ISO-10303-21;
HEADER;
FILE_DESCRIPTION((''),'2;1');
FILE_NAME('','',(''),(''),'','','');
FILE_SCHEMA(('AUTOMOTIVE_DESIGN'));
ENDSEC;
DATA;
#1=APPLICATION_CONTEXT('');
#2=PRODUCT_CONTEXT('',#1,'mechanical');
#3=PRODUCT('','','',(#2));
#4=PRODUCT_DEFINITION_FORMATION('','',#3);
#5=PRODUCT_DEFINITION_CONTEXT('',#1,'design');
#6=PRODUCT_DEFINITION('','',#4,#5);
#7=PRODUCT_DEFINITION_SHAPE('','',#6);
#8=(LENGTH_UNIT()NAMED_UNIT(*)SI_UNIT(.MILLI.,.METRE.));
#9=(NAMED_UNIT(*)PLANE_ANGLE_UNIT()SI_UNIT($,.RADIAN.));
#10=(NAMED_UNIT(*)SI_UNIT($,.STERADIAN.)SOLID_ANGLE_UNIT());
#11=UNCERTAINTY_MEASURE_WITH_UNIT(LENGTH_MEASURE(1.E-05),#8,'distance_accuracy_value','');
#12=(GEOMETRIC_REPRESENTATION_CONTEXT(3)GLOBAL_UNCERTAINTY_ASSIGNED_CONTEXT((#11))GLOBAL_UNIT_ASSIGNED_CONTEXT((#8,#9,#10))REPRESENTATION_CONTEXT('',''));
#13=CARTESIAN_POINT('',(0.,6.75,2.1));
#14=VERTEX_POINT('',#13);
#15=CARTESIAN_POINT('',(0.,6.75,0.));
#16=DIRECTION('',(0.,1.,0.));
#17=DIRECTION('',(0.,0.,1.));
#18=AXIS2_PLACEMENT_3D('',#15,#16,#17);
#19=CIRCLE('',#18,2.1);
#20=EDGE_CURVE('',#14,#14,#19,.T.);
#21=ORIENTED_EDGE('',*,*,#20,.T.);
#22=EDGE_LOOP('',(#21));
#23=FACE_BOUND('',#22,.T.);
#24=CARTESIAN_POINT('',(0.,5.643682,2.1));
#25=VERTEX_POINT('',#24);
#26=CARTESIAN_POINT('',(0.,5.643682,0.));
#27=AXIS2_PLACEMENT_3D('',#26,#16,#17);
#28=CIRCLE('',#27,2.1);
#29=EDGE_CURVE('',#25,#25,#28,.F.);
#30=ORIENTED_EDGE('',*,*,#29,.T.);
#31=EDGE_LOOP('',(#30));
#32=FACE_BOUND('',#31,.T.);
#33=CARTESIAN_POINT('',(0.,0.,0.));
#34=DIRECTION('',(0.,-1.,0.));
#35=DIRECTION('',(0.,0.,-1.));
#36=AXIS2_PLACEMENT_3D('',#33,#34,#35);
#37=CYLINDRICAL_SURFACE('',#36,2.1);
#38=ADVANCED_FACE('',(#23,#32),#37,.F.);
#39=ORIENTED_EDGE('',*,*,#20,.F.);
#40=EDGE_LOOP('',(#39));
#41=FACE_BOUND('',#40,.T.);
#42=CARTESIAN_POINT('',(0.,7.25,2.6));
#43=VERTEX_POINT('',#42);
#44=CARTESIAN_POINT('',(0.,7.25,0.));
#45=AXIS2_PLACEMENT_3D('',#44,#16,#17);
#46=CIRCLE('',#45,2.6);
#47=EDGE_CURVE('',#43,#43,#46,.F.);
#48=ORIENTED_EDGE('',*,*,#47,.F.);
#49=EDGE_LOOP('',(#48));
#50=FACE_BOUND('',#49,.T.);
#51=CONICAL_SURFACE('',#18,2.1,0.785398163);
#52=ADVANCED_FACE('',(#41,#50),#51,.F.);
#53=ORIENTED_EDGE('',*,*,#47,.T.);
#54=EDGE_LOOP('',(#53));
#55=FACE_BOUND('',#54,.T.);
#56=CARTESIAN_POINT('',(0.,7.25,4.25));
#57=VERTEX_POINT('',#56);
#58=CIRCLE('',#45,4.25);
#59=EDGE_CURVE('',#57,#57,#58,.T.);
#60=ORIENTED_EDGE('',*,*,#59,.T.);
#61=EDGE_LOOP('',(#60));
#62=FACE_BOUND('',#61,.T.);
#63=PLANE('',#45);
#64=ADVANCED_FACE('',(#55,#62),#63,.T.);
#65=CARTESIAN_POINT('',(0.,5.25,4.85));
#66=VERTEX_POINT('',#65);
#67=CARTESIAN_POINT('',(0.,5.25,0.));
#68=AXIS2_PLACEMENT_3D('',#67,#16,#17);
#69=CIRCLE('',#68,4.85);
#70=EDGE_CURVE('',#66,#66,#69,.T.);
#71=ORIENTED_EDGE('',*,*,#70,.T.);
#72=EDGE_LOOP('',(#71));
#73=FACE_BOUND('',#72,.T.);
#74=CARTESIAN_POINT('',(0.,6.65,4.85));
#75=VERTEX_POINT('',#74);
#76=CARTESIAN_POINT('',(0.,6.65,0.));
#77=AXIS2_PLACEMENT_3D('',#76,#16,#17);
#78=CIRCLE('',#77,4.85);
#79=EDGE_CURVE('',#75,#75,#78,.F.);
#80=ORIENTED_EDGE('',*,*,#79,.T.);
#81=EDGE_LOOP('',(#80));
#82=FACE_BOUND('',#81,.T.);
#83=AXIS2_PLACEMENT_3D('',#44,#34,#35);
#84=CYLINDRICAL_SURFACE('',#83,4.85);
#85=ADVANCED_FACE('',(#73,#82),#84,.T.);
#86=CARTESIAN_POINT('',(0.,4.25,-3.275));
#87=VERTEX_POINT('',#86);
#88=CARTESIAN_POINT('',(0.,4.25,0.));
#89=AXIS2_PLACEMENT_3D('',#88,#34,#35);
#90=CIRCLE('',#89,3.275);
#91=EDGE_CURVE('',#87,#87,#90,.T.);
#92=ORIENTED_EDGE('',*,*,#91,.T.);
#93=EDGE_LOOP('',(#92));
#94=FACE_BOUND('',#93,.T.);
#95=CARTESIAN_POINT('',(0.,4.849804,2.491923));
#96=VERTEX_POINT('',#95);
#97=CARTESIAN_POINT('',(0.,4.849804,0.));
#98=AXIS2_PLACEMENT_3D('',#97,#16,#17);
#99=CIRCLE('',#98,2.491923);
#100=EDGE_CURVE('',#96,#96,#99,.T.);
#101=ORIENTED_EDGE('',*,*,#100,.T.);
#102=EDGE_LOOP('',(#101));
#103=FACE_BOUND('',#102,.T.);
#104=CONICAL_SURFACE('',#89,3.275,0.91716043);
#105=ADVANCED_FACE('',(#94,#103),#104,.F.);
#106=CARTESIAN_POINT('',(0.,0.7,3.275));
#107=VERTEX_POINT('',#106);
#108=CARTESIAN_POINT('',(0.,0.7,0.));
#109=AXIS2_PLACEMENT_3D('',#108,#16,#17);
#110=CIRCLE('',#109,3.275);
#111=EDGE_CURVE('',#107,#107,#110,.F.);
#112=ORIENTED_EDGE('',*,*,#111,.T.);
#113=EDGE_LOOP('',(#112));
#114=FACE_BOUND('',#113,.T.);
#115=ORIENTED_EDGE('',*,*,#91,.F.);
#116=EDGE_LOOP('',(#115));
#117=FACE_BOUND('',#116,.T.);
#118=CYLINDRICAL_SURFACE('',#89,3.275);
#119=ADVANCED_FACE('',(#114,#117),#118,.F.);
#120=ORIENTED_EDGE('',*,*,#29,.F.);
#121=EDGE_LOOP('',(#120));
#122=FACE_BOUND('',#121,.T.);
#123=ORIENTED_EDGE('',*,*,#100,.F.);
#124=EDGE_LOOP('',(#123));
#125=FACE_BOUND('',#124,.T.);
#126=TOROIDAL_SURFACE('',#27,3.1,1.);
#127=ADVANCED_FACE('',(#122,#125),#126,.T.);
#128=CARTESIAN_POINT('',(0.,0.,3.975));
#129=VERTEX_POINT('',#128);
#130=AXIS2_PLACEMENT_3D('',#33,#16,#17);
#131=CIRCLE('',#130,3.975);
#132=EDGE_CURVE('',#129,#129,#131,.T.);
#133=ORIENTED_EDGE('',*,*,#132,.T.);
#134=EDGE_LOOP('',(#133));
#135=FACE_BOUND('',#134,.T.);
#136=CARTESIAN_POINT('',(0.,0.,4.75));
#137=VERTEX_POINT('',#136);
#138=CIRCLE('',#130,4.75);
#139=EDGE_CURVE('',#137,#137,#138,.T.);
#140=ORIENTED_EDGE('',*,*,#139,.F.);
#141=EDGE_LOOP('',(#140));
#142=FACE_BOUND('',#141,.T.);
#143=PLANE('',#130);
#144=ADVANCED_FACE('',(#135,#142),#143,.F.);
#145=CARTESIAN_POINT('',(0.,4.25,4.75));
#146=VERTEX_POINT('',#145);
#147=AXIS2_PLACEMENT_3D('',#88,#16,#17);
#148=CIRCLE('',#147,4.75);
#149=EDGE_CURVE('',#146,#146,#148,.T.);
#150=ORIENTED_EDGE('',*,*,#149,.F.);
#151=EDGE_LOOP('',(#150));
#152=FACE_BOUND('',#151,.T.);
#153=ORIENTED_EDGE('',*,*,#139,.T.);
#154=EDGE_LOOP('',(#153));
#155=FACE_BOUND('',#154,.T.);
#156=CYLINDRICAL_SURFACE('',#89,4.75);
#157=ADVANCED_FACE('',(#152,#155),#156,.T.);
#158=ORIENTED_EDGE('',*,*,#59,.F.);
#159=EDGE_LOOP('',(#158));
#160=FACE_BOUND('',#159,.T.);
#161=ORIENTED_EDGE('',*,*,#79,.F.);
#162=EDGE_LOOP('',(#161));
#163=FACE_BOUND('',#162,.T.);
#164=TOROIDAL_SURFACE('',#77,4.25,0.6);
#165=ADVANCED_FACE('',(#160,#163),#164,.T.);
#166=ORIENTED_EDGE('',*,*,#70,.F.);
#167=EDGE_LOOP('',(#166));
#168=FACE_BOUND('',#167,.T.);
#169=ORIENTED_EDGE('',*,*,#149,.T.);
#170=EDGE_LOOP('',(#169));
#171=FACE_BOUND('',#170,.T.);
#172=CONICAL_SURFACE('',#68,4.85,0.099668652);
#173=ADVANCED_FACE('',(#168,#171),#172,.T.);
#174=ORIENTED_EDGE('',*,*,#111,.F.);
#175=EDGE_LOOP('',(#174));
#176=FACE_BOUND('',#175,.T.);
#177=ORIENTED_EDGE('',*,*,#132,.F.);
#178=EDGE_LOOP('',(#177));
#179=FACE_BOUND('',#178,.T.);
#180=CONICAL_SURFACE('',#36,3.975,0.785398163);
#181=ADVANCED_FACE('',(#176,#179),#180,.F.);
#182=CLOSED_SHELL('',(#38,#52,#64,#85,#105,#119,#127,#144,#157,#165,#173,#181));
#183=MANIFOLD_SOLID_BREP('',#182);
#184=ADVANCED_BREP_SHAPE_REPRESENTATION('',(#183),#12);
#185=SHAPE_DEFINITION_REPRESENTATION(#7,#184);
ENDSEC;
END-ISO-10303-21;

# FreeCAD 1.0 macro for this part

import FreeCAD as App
import Part
import Sketcher

V = App.Vector


def edges_at(feature, points):
    """Names of the edges that pass closest to the given points."""
    edges = feature.Shape.Edges
    near = lambda p: min(range(len(edges)), key=lambda i: edges[i].distToShape(Part.Vertex(*p))[0])
    return sorted({f"Edge{near(p) + 1}" for p in points})


def add_polygon(sketch, points):
    """Adds a closed chain of lines whose ends are joined by coincident constraints."""
    first, n = sketch.GeometryCount, len(points)
    for a, b in zip(points, points[1:] + points[:1]):
        sketch.addGeometry(Part.LineSegment(App.Vector(*a, 0), App.Vector(*b, 0)), False)
    for i in range(n):
        sketch.addConstraint(Sketcher.Constraint("Coincident", first + i, 2, first + (i + 1) % n, 1))

doc = App.newDocument("Part")
params = doc.addObject("Spreadsheet::Sheet", "Params")
for row, (alias, value) in enumerate([
    ("sketch1_diameter", "9.5 mm"),
    ("sketch1_diameter2", "6.55 mm"),
    ("pad1_length", "4.25 mm"),
    ("sketch2_height", "0.1 mm"),
    ("sketch2_width", "2.75 mm"),
    ("revolution_angle", "360 deg"),
    ("sketch3_diameter", "9.7 mm"),
    ("sketch3_diameter2", "4.2 mm"),
    ("pad2_length", "2 mm"),
    ("fillet_radius", "0.6 mm"),
    ("fillet2_radius", "1 mm"),
    ("chamfer_size", "0.7 mm"),
    ("chamfer2_size", "0.5 mm"),
], start=1):
    params.set(f"A{row}", alias)
    params.set(f"B{row}", "=" + value)
    params.setAlias(f"B{row}", alias)

body = doc.addObject("PartDesign::Body", "Body")

# Sketch on XZ plane
sketch1 = body.newObject("Sketcher::SketchObject", "Sketch")
sketch1.AttachmentSupport = (doc.getObject("XZ_Plane"), [""])
sketch1.MapMode = "FlatFace"
sketch1.addGeometry(Part.Circle(V(0, 0, 0), V(0, 0, 1), 4.75), False)
sketch1.addGeometry(Part.Circle(V(0, 0, 0), V(0, 0, 1), 3.275), False)
sketch1.addConstraint(Sketcher.Constraint("Coincident", 0, 3, -1, 1))
sketch1.addConstraint(Sketcher.Constraint("Coincident", 1, 3, -1, 1))
sketch1.addConstraint(Sketcher.Constraint("Diameter", 0, 9.5))
sketch1.addConstraint(Sketcher.Constraint("Diameter", 1, 6.55))
sketch1.setExpression("Constraints[2]", "Params.sketch1_diameter")
sketch1.setExpression("Constraints[3]", "Params.sketch1_diameter2")
pad1 = body.newObject("PartDesign::Pad", "Pad")
pad1.Profile = sketch1
pad1.setExpression("Length", "Params.pad1_length")
pad1.Reversed = True

# Sketch on XY plane
sketch2 = body.newObject("Sketcher::SketchObject", "Sketch001")
sketch2.AttachmentSupport = (doc.getObject("XY_Plane"), [""])
sketch2.MapMode = "FlatFace"
add_polygon(sketch2, [(-4.85, 5.25), (-4.75, 4.25), (-3.275, 4.25), (-2.1, 5.15), (-2.1, 5.25)])  # lines 0-4
sketch2.addConstraint(Sketcher.Constraint("Horizontal", 1))
sketch2.addConstraint(Sketcher.Constraint("Vertical", 3))
sketch2.addConstraint(Sketcher.Constraint("Horizontal", 4))
sketch2.addConstraint(Sketcher.Constraint("DistanceY", 3, 1, 3, 2, 0.1))
sketch2.addConstraint(Sketcher.Constraint("DistanceY", 1, 2, 3, 2, 1.0))
sketch2.addConstraint(Sketcher.Constraint("DistanceX", 4, 2, 4, 1, 2.75))
sketch2.addConstraint(Sketcher.Constraint("DistanceX", 2, 2, -1, 1, 2.1))
sketch2.addConstraint(Sketcher.Constraint("DistanceX", 4, 2, 0, 2, 0.1))
sketch2.addConstraint(Sketcher.Constraint("DistanceX", 1, 1, 1, 2, 1.475))
sketch2.addConstraint(Sketcher.Constraint("DistanceY", -1, 1, 0, 2, 4.25))
sketch2.setExpression("Constraints[8]", "Params.sketch2_height")
sketch2.setExpression("Constraints[10]", "Params.sketch2_width")
revolution = body.newObject("PartDesign::Revolution", "Revolution")
revolution.Profile = sketch2
revolution.ReferenceAxis = (sketch2, ["V_Axis"])
revolution.setExpression("Angle", "Params.revolution_angle")

# Sketch on XZ plane
sketch3 = body.newObject("Sketcher::SketchObject", "Sketch002")
sketch3.AttachmentSupport = (doc.getObject("XZ_Plane"), [""])
sketch3.MapMode = "FlatFace"
sketch3.AttachmentOffset = App.Placement(V(0, 0, -5.25), App.Rotation())
sketch3.addGeometry(Part.Circle(V(0, 0, 0), V(0, 0, 1), 4.85), False)
sketch3.addGeometry(Part.Circle(V(0, 0, 0), V(0, 0, 1), 2.1), False)
sketch3.addConstraint(Sketcher.Constraint("Coincident", 0, 3, -1, 1))
sketch3.addConstraint(Sketcher.Constraint("Coincident", 1, 3, -1, 1))
sketch3.addConstraint(Sketcher.Constraint("Diameter", 0, 9.7))
sketch3.addConstraint(Sketcher.Constraint("Diameter", 1, 4.2))
sketch3.setExpression("Constraints[2]", "Params.sketch3_diameter")
sketch3.setExpression("Constraints[3]", "Params.sketch3_diameter2")
pad2 = body.newObject("PartDesign::Pad", "Pad001")
pad2.Profile = sketch3
pad2.setExpression("Length", "Params.pad2_length")
pad2.Reversed = True
doc.recompute()

fillet = body.newObject("PartDesign::Fillet", "Fillet")
fillet.Base = (pad2, edges_at(pad2, [(-4.85, 7.25, 0)]))
fillet.setExpression("Radius", "Params.fillet_radius")
doc.recompute()

fillet2 = body.newObject("PartDesign::Fillet", "Fillet001")
fillet2.Base = (fillet, edges_at(fillet, [(2.1, 5.15, 0)]))
fillet2.setExpression("Radius", "Params.fillet2_radius")
doc.recompute()

chamfer = body.newObject("PartDesign::Chamfer", "Chamfer")
chamfer.Base = (fillet2, edges_at(fillet2, [(-3.275, 0, 0)]))
chamfer.setExpression("Size", "Params.chamfer_size")
doc.recompute()

chamfer2 = body.newObject("PartDesign::Chamfer", "Chamfer001")
chamfer2.Base = (chamfer, edges_at(chamfer, [(-2.1, 7.25, 0)]))
chamfer2.setExpression("Size", "Params.chamfer2_size")

doc.recompute()
